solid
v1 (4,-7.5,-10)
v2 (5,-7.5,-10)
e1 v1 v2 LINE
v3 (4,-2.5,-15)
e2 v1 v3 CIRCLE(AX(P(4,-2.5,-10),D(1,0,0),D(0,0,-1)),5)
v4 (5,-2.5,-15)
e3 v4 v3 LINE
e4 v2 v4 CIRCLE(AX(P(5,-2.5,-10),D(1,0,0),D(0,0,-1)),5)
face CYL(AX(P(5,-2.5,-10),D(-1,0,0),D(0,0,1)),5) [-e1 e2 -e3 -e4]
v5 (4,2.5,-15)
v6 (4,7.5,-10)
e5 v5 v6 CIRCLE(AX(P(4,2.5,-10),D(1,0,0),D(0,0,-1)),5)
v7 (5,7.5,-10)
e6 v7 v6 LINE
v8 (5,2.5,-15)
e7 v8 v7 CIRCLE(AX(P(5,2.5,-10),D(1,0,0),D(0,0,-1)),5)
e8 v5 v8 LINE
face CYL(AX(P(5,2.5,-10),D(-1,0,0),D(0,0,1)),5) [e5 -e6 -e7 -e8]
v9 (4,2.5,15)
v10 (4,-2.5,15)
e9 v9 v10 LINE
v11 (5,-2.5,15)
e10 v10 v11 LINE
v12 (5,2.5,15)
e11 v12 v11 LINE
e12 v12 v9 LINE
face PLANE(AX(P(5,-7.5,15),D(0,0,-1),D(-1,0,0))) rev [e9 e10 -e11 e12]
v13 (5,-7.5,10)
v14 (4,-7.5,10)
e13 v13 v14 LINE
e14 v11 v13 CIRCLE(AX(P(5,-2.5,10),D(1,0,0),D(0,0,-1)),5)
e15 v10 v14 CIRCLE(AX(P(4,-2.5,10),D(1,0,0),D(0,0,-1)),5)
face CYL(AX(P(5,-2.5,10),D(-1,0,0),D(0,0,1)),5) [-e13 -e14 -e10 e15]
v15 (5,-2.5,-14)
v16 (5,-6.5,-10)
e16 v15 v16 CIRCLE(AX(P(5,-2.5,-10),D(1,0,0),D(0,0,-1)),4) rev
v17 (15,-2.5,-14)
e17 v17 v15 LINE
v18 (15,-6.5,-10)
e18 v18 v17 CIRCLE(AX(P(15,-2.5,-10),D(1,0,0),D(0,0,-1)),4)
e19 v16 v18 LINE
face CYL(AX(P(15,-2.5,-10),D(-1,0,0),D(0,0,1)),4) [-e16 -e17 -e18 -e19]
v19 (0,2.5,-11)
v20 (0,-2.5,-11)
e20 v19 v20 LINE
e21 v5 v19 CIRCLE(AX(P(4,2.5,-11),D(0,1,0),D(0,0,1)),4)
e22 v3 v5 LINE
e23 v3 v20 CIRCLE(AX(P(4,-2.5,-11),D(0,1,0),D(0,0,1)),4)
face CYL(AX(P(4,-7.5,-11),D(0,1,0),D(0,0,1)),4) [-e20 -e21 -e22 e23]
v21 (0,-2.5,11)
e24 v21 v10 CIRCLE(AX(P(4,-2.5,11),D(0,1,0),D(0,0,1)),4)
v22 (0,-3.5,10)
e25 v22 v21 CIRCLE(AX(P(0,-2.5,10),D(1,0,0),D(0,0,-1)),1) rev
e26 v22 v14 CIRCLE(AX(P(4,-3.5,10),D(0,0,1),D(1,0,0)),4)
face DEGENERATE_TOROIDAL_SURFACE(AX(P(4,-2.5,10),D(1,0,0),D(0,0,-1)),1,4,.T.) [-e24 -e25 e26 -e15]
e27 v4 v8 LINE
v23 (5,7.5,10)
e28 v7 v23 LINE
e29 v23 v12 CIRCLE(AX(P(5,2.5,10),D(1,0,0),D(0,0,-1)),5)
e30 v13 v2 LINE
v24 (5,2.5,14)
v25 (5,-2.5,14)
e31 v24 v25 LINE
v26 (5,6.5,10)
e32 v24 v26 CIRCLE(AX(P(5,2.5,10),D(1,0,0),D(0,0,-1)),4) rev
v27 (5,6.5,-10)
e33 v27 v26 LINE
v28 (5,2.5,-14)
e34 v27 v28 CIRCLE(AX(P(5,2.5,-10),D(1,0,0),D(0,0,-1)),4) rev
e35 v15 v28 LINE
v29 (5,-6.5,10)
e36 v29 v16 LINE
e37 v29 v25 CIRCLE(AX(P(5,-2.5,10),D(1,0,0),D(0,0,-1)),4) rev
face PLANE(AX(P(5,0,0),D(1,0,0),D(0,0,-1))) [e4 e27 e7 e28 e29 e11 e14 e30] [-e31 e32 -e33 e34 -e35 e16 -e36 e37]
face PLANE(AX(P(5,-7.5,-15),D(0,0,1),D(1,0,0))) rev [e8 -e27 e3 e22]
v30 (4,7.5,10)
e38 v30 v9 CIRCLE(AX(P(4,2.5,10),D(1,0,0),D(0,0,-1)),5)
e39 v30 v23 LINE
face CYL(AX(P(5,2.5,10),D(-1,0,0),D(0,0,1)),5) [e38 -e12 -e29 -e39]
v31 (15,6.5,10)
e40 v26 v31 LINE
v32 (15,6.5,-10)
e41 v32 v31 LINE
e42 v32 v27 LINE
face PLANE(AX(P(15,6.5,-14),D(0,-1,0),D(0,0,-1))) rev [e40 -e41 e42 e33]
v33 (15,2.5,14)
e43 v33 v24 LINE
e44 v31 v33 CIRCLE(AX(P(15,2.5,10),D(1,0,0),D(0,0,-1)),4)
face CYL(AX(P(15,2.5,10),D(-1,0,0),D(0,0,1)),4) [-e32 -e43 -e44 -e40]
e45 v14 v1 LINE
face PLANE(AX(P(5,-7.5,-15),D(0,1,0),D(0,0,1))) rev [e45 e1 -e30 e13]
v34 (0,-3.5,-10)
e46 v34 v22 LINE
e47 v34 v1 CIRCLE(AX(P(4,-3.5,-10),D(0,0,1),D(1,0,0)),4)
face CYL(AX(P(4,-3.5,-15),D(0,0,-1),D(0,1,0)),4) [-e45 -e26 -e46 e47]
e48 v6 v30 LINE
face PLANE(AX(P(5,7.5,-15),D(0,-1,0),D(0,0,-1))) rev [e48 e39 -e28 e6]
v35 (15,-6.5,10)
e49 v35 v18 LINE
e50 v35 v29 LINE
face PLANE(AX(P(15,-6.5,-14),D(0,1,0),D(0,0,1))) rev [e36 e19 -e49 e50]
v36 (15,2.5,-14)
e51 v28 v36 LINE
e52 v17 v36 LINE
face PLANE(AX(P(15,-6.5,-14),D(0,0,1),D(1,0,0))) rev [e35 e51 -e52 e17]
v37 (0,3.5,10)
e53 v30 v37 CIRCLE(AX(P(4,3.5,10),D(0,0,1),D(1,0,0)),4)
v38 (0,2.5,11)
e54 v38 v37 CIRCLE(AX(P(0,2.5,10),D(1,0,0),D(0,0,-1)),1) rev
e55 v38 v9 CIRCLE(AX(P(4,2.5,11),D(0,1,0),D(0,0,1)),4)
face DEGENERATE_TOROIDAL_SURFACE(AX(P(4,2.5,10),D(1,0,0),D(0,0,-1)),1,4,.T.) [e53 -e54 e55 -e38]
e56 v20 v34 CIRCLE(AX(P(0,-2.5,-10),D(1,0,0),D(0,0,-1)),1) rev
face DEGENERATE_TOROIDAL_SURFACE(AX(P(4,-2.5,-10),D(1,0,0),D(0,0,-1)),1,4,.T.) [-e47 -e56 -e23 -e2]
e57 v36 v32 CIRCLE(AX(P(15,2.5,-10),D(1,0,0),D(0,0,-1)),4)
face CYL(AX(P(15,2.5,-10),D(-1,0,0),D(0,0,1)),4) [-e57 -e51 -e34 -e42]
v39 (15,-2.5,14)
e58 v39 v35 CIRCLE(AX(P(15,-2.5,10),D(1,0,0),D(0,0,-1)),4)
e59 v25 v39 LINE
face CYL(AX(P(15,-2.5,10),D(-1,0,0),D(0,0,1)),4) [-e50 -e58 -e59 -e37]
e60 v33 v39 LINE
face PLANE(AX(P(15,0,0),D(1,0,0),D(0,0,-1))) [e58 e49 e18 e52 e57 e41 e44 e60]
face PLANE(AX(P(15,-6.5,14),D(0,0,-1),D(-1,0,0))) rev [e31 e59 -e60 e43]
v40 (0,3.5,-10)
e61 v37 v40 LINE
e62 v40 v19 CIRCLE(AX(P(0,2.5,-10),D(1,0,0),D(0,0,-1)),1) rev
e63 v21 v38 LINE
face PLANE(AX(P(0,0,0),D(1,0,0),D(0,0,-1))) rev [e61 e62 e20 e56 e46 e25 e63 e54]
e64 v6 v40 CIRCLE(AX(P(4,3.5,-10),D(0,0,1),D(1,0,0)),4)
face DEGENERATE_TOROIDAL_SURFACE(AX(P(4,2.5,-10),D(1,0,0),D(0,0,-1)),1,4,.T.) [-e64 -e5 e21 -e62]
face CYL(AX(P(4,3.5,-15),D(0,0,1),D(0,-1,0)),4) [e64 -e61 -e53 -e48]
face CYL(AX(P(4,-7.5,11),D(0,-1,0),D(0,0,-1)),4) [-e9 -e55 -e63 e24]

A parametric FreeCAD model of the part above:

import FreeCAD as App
import Part
import Sketcher
from FreeCAD import Vector


def edges_at(feature, points):
    """Names of the edges that pass closest to the given points."""
    edges = feature.Shape.Edges
    near = lambda p: min(range(len(edges)), key=lambda i: edges[i].distToShape(Part.Vertex(*p))[0])
    return sorted({f"Edge{near(p) + 1}" for p in points})

doc = App.newDocument("Part")
body = doc.addObject("PartDesign::Body", "Body")

sketch1 = body.newObject("Sketcher::SketchObject", "Sketch")
sketch1.AttachmentSupport = (doc.getObject("YZ_Plane"), [""])
sketch1.MapMode = "FlatFace"
sketch1.addGeometry([
    Part.LineSegment(Vector(8, 15, 0), Vector(-8, 15, 0)),
    Part.LineSegment(Vector(-8, 15, 0), Vector(-8, -15, 0)),
    Part.LineSegment(Vector(-8, -15, 0), Vector(8, -15, 0)),
    Part.LineSegment(Vector(8, -15, 0), Vector(8, 15, 0)),
], False)
sketch1.addConstraint([
    Sketcher.Constraint("Coincident", 0, 2, 1, 1),
    Sketcher.Constraint("Coincident", 1, 2, 2, 1),
    Sketcher.Constraint("Coincident", 2, 2, 3, 1),
    Sketcher.Constraint("Coincident", 3, 2, 0, 1),
    Sketcher.Constraint("Horizontal", 0),
    Sketcher.Constraint("Vertical", 1),
    Sketcher.Constraint("Horizontal", 2),
    Sketcher.Constraint("Vertical", 3),
    Sketcher.Constraint("Symmetric", 0, 2, 2, 2, -1, 1),
    Sketcher.Constraint("DistanceX", 0, 2, 0, 1, 15.0),
    Sketcher.Constraint("DistanceY", 1, 2, 1, 1, 30.0),
])
pad1 = body.newObject("PartDesign::Pad", "Pad")
pad1.Profile = sketch1
pad1.Length = 5

sketch2 = body.newObject("Sketcher::SketchObject", "Sketch001")
sketch2.AttachmentSupport = (doc.getObject("YZ_Plane"), [""])
sketch2.MapMode = "FlatFace"
sketch2.AttachmentOffset = App.Placement(Vector(0, 0, 5), App.Rotation())
sketch2.addGeometry([
    Part.LineSegment(Vector(6, 14, 0), Vector(-6, 14, 0)),
    Part.LineSegment(Vector(-6, 14, 0), Vector(-6, -14, 0)),
    Part.LineSegment(Vector(-6, -14, 0), Vector(6, -14, 0)),
    Part.LineSegment(Vector(6, -14, 0), Vector(6, 14, 0)),
], False)
sketch2.addConstraint([
    Sketcher.Constraint("Coincident", 0, 2, 1, 1),
    Sketcher.Constraint("Coincident", 1, 2, 2, 1),
    Sketcher.Constraint("Coincident", 2, 2, 3, 1),
    Sketcher.Constraint("Coincident", 3, 2, 0, 1),
    Sketcher.Constraint("Horizontal", 0),
    Sketcher.Constraint("Vertical", 1),
    Sketcher.Constraint("Horizontal", 2),
    Sketcher.Constraint("Vertical", 3),
    Sketcher.Constraint("Symmetric", 0, 2, 2, 2, -1, 1),
    Sketcher.Constraint("DistanceX", 0, 2, 0, 1, 13.0),
    Sketcher.Constraint("DistanceY", 1, 2, 1, 1, 28.0),
])
pad2 = body.newObject("PartDesign::Pad", "Pad001")
pad2.Profile = sketch2
pad2.Length = 10
doc.recompute()

fillet = body.newObject("PartDesign::Fillet", "Fillet")
fillet.Base = (pad2, edges_at(pad2, [
    (10, 6.5, 14),
    (10, -6.5, 14),
    (10, -6.5, -14),
    (10, 6.5, -14),
]))
fillet.Radius = 4
doc.recompute()

fillet2 = body.newObject("PartDesign::Fillet", "Fillet001")
fillet2.Base = (fillet, edges_at(fillet, [
    (2.5, 7.5, 15),
    (2.5, 7.5, -15),
    (2.5, -7.5, -15),
    (2.5, -7.5, 15),
]))
fillet2.Radius = 5
doc.recompute()

fillet3 = body.newObject("PartDesign::Fillet", "Fillet002")
fillet3.Base = (fillet2, edges_at(fillet2, [
    (0, 7.5, 0),
    (0, 0, 15),
    (0, 0, -15),
    (0, -7.5, 0),
    (0, 6.036, 13.536),
    (0, -6.036, 13.536),
    (0, -6.036, -13.536),
    (0, 6.036, -13.536),
]))
fillet3.Radius = 4

doc.recompute()
